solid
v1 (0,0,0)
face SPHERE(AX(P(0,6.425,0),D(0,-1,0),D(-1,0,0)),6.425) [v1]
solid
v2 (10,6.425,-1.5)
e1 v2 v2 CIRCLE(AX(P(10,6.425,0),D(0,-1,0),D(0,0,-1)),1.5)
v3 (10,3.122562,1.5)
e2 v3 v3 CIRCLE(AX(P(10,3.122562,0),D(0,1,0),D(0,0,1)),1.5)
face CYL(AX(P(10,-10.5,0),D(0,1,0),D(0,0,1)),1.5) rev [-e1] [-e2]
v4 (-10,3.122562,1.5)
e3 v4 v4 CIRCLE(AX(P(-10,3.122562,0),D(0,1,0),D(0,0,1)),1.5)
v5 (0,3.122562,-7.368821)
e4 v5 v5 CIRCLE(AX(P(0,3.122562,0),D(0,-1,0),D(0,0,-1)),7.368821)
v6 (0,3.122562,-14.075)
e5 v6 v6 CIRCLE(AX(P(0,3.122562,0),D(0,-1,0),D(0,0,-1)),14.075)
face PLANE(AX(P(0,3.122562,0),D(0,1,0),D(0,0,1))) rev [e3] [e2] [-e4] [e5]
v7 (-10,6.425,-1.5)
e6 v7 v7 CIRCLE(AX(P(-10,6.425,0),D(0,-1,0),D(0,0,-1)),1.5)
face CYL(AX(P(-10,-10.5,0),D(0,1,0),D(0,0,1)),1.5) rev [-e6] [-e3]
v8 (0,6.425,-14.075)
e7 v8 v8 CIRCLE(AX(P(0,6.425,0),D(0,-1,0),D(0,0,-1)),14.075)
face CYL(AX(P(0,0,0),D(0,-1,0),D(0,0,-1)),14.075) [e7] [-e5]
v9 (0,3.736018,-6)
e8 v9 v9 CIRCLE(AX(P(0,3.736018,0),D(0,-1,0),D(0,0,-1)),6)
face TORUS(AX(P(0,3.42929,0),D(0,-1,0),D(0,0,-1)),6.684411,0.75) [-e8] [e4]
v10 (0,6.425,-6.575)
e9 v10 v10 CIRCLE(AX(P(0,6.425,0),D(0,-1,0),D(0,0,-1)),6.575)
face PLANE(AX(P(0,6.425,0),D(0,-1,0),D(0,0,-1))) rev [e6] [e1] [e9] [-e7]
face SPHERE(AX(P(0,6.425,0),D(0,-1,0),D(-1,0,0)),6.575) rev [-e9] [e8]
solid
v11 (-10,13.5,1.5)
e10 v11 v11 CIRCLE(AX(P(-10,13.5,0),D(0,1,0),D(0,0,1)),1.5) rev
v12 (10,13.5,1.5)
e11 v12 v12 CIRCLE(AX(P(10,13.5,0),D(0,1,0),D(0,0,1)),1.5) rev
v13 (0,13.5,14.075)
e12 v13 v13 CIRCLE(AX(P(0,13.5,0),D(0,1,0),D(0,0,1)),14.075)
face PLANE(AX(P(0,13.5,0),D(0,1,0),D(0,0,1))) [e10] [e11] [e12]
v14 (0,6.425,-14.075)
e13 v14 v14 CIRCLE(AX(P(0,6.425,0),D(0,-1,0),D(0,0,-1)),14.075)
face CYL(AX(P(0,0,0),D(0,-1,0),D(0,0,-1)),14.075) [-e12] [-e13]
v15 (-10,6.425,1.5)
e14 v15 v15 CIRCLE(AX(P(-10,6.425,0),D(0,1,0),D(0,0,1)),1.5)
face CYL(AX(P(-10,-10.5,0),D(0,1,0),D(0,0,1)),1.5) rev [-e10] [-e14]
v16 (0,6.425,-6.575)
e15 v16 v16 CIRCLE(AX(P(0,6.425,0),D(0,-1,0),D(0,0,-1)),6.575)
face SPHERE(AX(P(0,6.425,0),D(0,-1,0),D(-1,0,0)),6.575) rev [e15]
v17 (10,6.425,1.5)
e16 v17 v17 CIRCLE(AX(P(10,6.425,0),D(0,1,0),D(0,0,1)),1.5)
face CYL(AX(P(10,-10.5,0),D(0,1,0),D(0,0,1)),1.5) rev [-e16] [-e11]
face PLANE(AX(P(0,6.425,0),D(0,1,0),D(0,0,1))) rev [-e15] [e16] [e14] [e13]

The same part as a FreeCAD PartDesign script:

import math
import FreeCAD as App
import Part
import Sketcher

V = App.Vector

doc = App.newDocument("Part")
body = doc.addObject("PartDesign::Body", "Body")

# Sketch on XY plane
sketch1 = doc.addObject("Sketcher::SketchObject", "Sketch")
body.addObject(sketch1)
sketch1.AttachmentSupport = (doc.XY_Plane, [""])
sketch1.MapMode = "FlatFace"
sketch1.addGeometry([
    Part.ArcOfCircle(Part.Circle(V(0, 6, 0), V(0, 0, 1), 6), math.radians(90), math.radians(270)),
    Part.LineSegment(V(0, 0, 0), V(0, 13, 0)),
], False)
sketch1.addConstraint([
    Sketcher.Constraint("Coincident", 0, 1, 1, 2),
    Sketcher.Constraint("Coincident", 1, 1, 0, 2),
    Sketcher.Constraint("Vertical", 1),
    Sketcher.Constraint("Coincident", 1, 1, -1, 1),
    Sketcher.Constraint("PointOnObject", 0, 3, -2),
    Sketcher.Constraint("Radius", 0, 6.425),
])
revolution = doc.addObject("PartDesign::Revolution", "Revolution")
body.addObject(revolution)
revolution.Profile = sketch1
revolution.ReferenceAxis = (sketch1, ["V_Axis"])
revolution.Angle = 360
body2 = doc.addObject("PartDesign::Body", "Body001")

# Sketch on XY plane
sketch2 = doc.addObject("Sketcher::SketchObject", "Sketch001")
body2.addObject(sketch2)
sketch2.AttachmentSupport = (doc.getObject("XY_Plane001"), [""])
sketch2.MapMode = "FlatFace"
sketch2.addGeometry([
    Part.LineSegment(V(0, 14.5, 0), V(0, 13, 0)),  # 0
    Part.ArcOfCircle(Part.Circle(V(0, 6.4, 0), V(0, 0, 1), 6.6), math.radians(0), math.radians(90)),  # 1
    Part.LineSegment(V(6.6, 6.4, 0), V(14.1, 6.4, 0)),  # 2
    Part.LineSegment(V(14.1, 6.4, 0), V(14.1, 14.5, 0)),  # 3
    Part.LineSegment(V(14.1, 14.5, 0), V(0, 14.5, 0)),  # 4
], False)
sketch2.addConstraint([
    Sketcher.Constraint("Coincident", 0, 2, 1, 2),
    Sketcher.Constraint("Coincident", 1, 1, 2, 1),
    Sketcher.Constraint("Coincident", 2, 2, 3, 1),
    Sketcher.Constraint("Coincident", 3, 2, 4, 1),
    Sketcher.Constraint("Coincident", 4, 2, 0, 1),
    Sketcher.Constraint("Vertical", 0),
    Sketcher.Constraint("Horizontal", 2),
    Sketcher.Constraint("Vertical", 3),
    Sketcher.Constraint("Horizontal", 4),
    Sketcher.Constraint("PointOnObject", 1, 3, -2),
    Sketcher.Constraint("PointOnObject", 0, 2, -2),
    Sketcher.Constraint("DistanceX", 2, 1, 2, 2, 7.5),
    Sketcher.Constraint("DistanceY", 0, 2, 0, 1, 1.5),
    Sketcher.Constraint("DistanceY", -1, 1, 0, 2, 13.0),
    Sketcher.Constraint("Radius", 1, 6.575),
    Sketcher.Constraint("DistanceY", 3, 1, 3, 2, 8.075),
])
revolution2 = doc.addObject("PartDesign::Revolution", "Revolution001")
body2.addObject(revolution2)
revolution2.Profile = sketch2
revolution2.ReferenceAxis = (sketch2, ["V_Axis"])
revolution2.Angle = 360
body3 = doc.addObject("PartDesign::Body", "Body002")

# Sketch on XY plane
sketch3 = doc.addObject("Sketcher::SketchObject", "Sketch002")
body3.addObject(sketch3)
sketch3.AttachmentSupport = (doc.getObject("XY_Plane002"), [""])
sketch3.MapMode = "FlatFace"
sketch3.addGeometry([
    Part.LineSegment(V(-14.1, 6.4, 0), V(-14.1, 3.1, 0)),  # 0
    Part.LineSegment(V(-14.1, 3.1, 0), V(-7.4, 3.1, 0)),  # 1
    Part.ArcOfCircle(Part.Circle(V(-6.7, 3.4, 0), V(0, 0, 1), 0.8), math.radians(-156), math.radians(24)),  # 2
    Part.ArcOfCircle(Part.Circle(V(0, 6.4, 0), V(0, 0, 1), 6.6), math.radians(180), math.radians(204)),  # 3
    Part.LineSegment(V(-6.6, 6.4, 0), V(-14.1, 6.4, 0)),  # 4
], False)
sketch3.addConstraint([
    Sketcher.Constraint("Coincident", 0, 2, 1, 1),
    Sketcher.Constraint("Coincident", 1, 2, 2, 1),
    Sketcher.Constraint("Tangent", 2, 2, 3, 2),
    Sketcher.Constraint("Coincident", 3, 1, 4, 1),
    Sketcher.Constraint("Coincident", 4, 2, 0, 1),
    Sketcher.Constraint("Vertical", 0),
    Sketcher.Constraint("Horizontal", 1),
    Sketcher.Constraint("Horizontal", 4),
    Sketcher.Constraint("PointOnObject", 3, 3, -2),
    Sketcher.Constraint("Radius", 2, 0.75),
    Sketcher.Constraint("DistanceX", 4, 2, 4, 1, 7.5),
    Sketcher.Constraint("DistanceX", 2, 2, -1, 1, 6.0),
    Sketcher.Constraint("Radius", 3, 6.575),
    Sketcher.Constraint("DistanceY", -1, 1, 3, 3, 6.425),
    Sketcher.Constraint("DistanceY", -1, 1, 3, 1, 6.425),
    Sketcher.Constraint("DistanceX", 1, 1, 1, 2, 6.706179),
])
revolution3 = doc.addObject("PartDesign::Revolution", "Revolution002")
body3.addObject(revolution3)
revolution3.Profile = sketch3
revolution3.ReferenceAxis = (sketch3, ["V_Axis"])
revolution3.Angle = 360
body4 = doc.addObject("PartDesign::Body", "Body003")
body4.AllowCompound = True

# Sketch on XZ plane
sketch4 = doc.addObject("Sketcher::SketchObject", "Sketch003")
body4.addObject(sketch4)
sketch4.AttachmentSupport = (doc.getObject("XZ_Plane003"), [""])
sketch4.MapMode = "FlatFace"
sketch4.AttachmentOffset = App.Placement(V(0, 0, -14.5), App.Rotation())
sketch4.addGeometry([
    Part.Circle(V(-10, 0, 0), V(0, 0, 1), 1.5),
    Part.Circle(V(10, 0, 0), V(0, 0, 1), 1.5),
], False)
sketch4.addConstraint([
    Sketcher.Constraint("Equal", 0, 1),
    Sketcher.Constraint("Symmetric", 0, 3, 1, 3, -1, 1),
    Sketcher.Constraint("PointOnObject", 0, 3, -1),
    Sketcher.Constraint("Diameter", 0, 3.0),
    Sketcher.Constraint("DistanceX", 0, 3, -1, 1, 10.0),
])
pad1 = doc.addObject("PartDesign::Pad", "Pad")
body4.addObject(pad1)
pad1.Profile = sketch4
pad1.Length = 25
doc.recompute()

body5 = doc.addObject("PartDesign::Body", "Body004")
body5.BaseFeature = body4
boolean = doc.addObject("PartDesign::Boolean", "Boolean")
body2.addObject(boolean)
boolean.Type = "Cut"
boolean.addObjects([body5])
doc.recompute()

# Sketch on XZ plane
sketch5 = doc.addObject("Sketcher::SketchObject", "Sketch004")
body2.addObject(sketch5)
sketch5.AttachmentSupport = (doc.getObject("XZ_Plane001"), [""])
sketch5.MapMode = "FlatFace"
sketch5.AttachmentOffset = App.Placement(V(0, 0, -14.5), App.Rotation())
sketch5.addGeometry(Part.Circle(V(0, 0, 0), V(0, 0, 1), 14), False)
sketch5.addConstraint([
    Sketcher.Constraint("Coincident", 0, 3, -1, 1),
    Sketcher.Constraint("Diameter", 0, 28.15),
])
pocket1 = doc.addObject("PartDesign::Pocket", "Pocket")
body2.addObject(pocket1)
pocket1.Profile = sketch5
pocket1.Length = 1
pocket1.Reversed = True
doc.recompute()

boolean2 = doc.addObject("PartDesign::Boolean", "Boolean001")
body3.addObject(boolean2)
boolean2.Type = "Cut"
boolean2.addObjects([body4])

doc.recompute()
